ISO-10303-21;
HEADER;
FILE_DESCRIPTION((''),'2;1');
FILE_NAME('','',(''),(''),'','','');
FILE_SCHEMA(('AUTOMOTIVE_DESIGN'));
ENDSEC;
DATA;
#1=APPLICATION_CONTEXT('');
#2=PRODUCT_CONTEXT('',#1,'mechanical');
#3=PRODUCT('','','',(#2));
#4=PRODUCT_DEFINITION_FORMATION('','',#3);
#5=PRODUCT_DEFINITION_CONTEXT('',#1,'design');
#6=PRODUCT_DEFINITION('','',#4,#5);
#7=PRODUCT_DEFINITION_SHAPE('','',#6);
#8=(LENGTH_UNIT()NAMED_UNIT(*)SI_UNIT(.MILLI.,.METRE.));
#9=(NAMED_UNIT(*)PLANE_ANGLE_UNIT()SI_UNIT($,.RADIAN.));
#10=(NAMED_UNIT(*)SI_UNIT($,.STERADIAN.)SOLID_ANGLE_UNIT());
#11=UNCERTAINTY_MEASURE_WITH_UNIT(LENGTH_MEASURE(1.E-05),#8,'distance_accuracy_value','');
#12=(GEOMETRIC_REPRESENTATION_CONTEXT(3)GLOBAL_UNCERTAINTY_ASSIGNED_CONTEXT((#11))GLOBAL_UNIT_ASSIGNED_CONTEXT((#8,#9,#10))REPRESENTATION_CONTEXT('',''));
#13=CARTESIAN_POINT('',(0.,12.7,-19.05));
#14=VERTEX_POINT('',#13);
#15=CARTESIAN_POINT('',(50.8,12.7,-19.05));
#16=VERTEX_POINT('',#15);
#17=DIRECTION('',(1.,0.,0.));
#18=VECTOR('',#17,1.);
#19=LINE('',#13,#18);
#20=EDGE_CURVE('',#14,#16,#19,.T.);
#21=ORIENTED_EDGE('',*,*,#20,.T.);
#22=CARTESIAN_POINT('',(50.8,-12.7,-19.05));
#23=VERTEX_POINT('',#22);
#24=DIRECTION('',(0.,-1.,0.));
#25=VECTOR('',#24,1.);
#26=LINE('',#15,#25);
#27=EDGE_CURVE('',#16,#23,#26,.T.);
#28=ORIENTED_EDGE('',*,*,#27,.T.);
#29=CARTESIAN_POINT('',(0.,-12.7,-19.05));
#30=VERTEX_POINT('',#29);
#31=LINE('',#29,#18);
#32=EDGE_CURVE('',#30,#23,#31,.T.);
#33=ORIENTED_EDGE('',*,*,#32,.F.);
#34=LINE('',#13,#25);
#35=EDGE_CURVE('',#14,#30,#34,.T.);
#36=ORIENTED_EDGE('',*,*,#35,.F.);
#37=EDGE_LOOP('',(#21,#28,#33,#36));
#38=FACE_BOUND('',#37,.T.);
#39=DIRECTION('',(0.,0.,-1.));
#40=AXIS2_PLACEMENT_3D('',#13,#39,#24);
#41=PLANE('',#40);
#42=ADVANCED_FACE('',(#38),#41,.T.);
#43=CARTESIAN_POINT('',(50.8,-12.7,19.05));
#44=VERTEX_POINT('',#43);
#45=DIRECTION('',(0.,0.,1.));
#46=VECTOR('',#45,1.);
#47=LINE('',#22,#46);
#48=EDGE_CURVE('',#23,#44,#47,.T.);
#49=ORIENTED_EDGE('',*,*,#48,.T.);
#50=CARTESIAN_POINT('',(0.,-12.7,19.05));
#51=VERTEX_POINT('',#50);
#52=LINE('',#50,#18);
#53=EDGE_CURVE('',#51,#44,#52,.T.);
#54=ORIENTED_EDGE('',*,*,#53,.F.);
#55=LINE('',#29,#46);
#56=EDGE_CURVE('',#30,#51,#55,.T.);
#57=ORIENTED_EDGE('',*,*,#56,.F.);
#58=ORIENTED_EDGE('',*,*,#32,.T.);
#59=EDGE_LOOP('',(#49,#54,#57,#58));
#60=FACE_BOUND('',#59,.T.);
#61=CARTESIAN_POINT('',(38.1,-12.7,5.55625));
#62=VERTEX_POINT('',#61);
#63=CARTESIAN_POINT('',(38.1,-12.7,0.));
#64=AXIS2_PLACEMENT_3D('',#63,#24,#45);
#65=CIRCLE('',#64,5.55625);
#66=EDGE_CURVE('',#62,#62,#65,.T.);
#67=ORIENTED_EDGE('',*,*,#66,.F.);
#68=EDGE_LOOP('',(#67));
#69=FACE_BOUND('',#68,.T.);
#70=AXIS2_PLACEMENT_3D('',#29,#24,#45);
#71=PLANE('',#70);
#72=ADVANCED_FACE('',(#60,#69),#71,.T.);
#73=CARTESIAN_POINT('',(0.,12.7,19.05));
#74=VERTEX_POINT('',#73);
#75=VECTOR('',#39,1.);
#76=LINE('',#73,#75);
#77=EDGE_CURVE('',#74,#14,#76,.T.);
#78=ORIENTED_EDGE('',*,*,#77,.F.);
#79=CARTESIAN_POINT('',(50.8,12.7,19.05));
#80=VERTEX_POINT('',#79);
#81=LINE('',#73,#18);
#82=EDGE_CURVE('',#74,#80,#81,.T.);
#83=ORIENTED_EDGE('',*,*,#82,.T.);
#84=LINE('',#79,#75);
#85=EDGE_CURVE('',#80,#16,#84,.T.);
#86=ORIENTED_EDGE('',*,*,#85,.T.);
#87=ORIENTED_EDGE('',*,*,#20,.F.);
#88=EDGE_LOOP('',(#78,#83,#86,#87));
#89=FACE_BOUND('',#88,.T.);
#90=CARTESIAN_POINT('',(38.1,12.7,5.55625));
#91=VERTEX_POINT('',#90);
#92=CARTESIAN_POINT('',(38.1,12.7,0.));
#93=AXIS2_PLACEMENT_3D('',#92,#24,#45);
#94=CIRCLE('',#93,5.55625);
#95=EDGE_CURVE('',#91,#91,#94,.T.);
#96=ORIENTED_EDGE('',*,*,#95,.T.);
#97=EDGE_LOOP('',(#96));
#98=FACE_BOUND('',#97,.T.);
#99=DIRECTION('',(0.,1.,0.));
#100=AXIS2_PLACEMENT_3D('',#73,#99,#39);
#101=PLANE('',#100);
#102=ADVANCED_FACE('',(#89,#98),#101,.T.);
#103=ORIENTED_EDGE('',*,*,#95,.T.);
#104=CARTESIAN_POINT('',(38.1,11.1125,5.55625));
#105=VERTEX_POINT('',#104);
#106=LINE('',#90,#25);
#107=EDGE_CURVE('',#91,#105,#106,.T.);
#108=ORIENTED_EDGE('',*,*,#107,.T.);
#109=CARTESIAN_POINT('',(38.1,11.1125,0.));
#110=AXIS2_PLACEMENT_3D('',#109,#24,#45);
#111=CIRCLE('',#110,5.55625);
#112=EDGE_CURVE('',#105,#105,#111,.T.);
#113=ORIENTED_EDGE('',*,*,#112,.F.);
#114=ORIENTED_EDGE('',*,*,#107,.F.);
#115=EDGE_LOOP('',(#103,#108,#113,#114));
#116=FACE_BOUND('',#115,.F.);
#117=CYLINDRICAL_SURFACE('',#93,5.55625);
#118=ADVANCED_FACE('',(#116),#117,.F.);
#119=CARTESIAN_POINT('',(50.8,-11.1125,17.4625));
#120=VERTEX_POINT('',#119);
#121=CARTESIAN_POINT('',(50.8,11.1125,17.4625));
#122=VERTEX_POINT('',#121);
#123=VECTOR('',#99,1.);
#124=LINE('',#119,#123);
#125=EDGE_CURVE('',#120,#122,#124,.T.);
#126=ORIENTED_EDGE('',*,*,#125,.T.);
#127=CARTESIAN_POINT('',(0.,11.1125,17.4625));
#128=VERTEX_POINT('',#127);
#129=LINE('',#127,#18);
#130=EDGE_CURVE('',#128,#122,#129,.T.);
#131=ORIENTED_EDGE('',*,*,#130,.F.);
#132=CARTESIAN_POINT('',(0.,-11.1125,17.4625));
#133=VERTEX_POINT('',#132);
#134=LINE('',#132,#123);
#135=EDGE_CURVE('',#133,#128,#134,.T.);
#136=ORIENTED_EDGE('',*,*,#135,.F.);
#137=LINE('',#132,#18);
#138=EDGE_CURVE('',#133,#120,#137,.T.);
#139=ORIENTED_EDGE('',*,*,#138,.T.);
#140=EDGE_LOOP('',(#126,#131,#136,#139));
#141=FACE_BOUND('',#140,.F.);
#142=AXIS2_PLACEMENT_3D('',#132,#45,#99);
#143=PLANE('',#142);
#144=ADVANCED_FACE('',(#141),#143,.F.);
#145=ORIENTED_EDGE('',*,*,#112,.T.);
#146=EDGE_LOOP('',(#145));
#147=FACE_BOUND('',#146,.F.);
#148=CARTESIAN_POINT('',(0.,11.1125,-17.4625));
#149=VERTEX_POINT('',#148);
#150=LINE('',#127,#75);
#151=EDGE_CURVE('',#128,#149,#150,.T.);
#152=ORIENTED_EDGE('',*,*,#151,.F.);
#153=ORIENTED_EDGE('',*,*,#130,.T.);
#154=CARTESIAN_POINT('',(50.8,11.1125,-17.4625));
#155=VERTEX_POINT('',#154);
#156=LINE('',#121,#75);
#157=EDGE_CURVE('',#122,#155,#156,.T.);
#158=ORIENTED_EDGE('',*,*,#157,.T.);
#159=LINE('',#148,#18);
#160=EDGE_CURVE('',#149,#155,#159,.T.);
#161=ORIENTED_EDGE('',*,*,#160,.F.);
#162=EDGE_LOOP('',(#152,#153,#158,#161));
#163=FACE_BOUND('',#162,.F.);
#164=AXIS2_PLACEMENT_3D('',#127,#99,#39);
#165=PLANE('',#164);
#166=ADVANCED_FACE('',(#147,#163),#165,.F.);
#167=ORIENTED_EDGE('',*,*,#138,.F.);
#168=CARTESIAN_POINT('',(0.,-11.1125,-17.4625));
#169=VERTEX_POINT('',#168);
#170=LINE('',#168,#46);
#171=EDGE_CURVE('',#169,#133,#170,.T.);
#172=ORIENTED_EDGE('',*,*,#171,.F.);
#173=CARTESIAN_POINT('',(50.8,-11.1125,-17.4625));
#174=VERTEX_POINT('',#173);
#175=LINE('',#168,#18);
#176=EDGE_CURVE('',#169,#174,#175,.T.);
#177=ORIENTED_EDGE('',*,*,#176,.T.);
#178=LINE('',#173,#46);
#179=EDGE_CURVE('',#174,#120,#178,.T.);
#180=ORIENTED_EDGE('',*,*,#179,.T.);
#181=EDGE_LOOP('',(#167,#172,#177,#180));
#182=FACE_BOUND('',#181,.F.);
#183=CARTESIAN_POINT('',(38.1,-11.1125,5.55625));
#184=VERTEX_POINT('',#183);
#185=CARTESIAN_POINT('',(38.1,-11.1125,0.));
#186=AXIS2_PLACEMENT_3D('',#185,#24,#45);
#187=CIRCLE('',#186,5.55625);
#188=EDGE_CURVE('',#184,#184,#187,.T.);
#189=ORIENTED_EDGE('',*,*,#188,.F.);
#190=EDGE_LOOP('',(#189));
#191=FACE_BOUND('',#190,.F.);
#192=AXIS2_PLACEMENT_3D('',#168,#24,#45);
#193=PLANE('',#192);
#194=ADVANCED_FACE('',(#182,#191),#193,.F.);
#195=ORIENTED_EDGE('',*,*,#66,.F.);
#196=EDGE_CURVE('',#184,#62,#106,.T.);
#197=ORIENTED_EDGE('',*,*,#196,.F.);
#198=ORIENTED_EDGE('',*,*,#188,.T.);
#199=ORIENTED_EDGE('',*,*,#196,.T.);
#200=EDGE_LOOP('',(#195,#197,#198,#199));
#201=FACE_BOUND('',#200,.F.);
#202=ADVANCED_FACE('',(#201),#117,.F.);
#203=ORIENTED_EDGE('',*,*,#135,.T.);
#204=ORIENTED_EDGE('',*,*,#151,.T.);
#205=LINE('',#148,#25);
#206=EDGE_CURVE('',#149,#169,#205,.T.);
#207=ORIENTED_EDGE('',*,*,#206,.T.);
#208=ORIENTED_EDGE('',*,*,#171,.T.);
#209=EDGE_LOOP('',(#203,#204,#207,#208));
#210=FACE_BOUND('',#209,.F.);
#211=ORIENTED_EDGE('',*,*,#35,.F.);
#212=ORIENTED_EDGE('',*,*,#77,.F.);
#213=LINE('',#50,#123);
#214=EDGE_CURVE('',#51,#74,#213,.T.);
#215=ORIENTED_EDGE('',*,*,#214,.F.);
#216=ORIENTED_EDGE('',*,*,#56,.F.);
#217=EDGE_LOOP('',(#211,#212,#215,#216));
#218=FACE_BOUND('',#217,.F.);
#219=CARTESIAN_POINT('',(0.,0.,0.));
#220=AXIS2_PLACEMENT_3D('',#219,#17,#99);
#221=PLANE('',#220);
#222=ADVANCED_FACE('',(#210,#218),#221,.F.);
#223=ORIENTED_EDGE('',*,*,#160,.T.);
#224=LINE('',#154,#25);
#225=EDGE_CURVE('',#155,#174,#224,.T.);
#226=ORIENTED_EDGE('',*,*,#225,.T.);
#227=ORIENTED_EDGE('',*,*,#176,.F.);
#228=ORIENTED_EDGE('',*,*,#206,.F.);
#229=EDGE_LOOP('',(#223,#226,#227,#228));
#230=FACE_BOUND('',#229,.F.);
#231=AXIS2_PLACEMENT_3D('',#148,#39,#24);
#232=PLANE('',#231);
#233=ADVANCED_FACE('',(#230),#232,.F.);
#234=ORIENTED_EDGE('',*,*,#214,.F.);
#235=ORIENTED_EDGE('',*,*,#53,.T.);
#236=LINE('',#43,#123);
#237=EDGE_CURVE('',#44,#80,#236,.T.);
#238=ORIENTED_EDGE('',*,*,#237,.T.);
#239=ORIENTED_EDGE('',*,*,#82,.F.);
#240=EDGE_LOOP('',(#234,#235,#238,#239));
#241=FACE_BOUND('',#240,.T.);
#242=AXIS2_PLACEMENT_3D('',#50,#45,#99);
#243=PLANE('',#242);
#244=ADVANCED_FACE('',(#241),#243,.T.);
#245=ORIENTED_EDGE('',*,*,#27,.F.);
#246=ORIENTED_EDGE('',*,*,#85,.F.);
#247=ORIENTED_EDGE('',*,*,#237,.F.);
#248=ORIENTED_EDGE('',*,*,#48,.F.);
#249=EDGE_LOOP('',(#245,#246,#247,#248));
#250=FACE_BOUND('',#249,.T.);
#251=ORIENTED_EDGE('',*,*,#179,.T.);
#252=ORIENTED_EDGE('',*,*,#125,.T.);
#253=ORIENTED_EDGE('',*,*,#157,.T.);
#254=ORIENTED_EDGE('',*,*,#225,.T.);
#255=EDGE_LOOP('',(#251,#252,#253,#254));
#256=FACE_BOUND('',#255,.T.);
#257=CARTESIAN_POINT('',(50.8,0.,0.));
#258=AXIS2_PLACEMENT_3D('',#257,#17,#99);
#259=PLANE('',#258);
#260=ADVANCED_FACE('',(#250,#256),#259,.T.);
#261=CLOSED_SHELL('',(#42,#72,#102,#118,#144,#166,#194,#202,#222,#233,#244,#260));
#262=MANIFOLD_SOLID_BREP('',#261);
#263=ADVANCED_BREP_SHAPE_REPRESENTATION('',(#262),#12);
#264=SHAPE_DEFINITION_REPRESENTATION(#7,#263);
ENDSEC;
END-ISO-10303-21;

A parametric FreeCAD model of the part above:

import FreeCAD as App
import Part
import Sketcher
Q = App.Units.Quantity

doc = App.newDocument("Part")
body = doc.addObject("PartDesign::Body", "Body")

sketch1 = doc.addObject("Sketcher::SketchObject", "Sketch")
body.addObject(sketch1)
sketch1.AttachmentSupport = (doc.YZ_Plane, [""])
sketch1.MapMode = "FlatFace"
sketch1.addGeometry([
    Part.LineSegment(App.Vector(13, 19, 0), App.Vector(-13, 19, 0)),
    Part.LineSegment(App.Vector(-13, 19, 0), App.Vector(-13, -19, 0)),
    Part.LineSegment(App.Vector(-13, -19, 0), App.Vector(13, -19, 0)),
    Part.LineSegment(App.Vector(13, -19, 0), App.Vector(13, 19, 0)),
    Part.LineSegment(App.Vector(-11, -17, 0), App.Vector(-11, 17, 0)),
    Part.LineSegment(App.Vector(-11, 17, 0), App.Vector(11, 17, 0)),
    Part.LineSegment(App.Vector(11, 17, 0), App.Vector(11, -17, 0)),
    Part.LineSegment(App.Vector(11, -17, 0), App.Vector(-11, -17, 0)),
], False)
sketch1.addConstraint([
    Sketcher.Constraint("Coincident", 0, 2, 1, 1),
    Sketcher.Constraint("Coincident", 1, 2, 2, 1),
    Sketcher.Constraint("Coincident", 2, 2, 3, 1),
    Sketcher.Constraint("Coincident", 3, 2, 0, 1),
    Sketcher.Constraint("Coincident", 4, 2, 5, 1),
    Sketcher.Constraint("Coincident", 5, 2, 6, 1),
    Sketcher.Constraint("Coincident", 6, 2, 7, 1),
    Sketcher.Constraint("Coincident", 7, 2, 4, 1),
    Sketcher.Constraint("Horizontal", 0),
    Sketcher.Constraint("Vertical", 1),
    Sketcher.Constraint("Horizontal", 2),
    Sketcher.Constraint("Vertical", 3),
    Sketcher.Constraint("Vertical", 4),
    Sketcher.Constraint("Horizontal", 5),
    Sketcher.Constraint("Vertical", 6),
    Sketcher.Constraint("Horizontal", 7),
    Sketcher.Constraint("Symmetric", 0, 2, 2, 2, -1, 1),
    Sketcher.Constraint("Symmetric", 4, 2, 6, 2, -1, 1),
    Sketcher.Constraint("DistanceX", 0, 2, 0, 1, Q("1 in")),
    Sketcher.Constraint("DistanceY", 1, 2, 1, 1, Q("1.5 in")),
    Sketcher.Constraint("DistanceX", 0, 2, 4, 2, Q("0.0625 in")),
    Sketcher.Constraint("DistanceY", 4, 2, 0, 2, Q("0.0625 in")),
])
pad1 = doc.addObject("PartDesign::Pad", "Pad")
body.addObject(pad1)
pad1.Profile = sketch1
pad1.Length = Q("2 in")

sketch2 = doc.addObject("Sketcher::SketchObject", "Sketch001")
body.addObject(sketch2)
sketch2.AttachmentSupport = (doc.XZ_Plane, [""])
sketch2.MapMode = "FlatFace"
sketch2.AttachmentOffset = App.Placement(App.Vector(0, 0, -0.5 * 25.4), App.Rotation())
sketch2.addGeometry(Part.Circle(App.Vector(38, 0, 0), App.Vector(0, 0, 1), 6), False)
sketch2.addConstraint([
    Sketcher.Constraint("PointOnObject", 0, 3, -1),
    Sketcher.Constraint("Diameter", 0, Q("0.4375 in")),
    Sketcher.Constraint("DistanceX", -1, 1, 0, 3, Q("1.5 in")),
])
doc.recompute()
hole = doc.addObject("PartDesign::Hole", "Hole")
body.addObject(hole)
hole.Profile = sketch2
hole.ThreadType = "None"
hole.Diameter = Q("0.4375 in")
hole.DepthType = "ThroughAll"
hole.Reversed = True

doc.recompute()
